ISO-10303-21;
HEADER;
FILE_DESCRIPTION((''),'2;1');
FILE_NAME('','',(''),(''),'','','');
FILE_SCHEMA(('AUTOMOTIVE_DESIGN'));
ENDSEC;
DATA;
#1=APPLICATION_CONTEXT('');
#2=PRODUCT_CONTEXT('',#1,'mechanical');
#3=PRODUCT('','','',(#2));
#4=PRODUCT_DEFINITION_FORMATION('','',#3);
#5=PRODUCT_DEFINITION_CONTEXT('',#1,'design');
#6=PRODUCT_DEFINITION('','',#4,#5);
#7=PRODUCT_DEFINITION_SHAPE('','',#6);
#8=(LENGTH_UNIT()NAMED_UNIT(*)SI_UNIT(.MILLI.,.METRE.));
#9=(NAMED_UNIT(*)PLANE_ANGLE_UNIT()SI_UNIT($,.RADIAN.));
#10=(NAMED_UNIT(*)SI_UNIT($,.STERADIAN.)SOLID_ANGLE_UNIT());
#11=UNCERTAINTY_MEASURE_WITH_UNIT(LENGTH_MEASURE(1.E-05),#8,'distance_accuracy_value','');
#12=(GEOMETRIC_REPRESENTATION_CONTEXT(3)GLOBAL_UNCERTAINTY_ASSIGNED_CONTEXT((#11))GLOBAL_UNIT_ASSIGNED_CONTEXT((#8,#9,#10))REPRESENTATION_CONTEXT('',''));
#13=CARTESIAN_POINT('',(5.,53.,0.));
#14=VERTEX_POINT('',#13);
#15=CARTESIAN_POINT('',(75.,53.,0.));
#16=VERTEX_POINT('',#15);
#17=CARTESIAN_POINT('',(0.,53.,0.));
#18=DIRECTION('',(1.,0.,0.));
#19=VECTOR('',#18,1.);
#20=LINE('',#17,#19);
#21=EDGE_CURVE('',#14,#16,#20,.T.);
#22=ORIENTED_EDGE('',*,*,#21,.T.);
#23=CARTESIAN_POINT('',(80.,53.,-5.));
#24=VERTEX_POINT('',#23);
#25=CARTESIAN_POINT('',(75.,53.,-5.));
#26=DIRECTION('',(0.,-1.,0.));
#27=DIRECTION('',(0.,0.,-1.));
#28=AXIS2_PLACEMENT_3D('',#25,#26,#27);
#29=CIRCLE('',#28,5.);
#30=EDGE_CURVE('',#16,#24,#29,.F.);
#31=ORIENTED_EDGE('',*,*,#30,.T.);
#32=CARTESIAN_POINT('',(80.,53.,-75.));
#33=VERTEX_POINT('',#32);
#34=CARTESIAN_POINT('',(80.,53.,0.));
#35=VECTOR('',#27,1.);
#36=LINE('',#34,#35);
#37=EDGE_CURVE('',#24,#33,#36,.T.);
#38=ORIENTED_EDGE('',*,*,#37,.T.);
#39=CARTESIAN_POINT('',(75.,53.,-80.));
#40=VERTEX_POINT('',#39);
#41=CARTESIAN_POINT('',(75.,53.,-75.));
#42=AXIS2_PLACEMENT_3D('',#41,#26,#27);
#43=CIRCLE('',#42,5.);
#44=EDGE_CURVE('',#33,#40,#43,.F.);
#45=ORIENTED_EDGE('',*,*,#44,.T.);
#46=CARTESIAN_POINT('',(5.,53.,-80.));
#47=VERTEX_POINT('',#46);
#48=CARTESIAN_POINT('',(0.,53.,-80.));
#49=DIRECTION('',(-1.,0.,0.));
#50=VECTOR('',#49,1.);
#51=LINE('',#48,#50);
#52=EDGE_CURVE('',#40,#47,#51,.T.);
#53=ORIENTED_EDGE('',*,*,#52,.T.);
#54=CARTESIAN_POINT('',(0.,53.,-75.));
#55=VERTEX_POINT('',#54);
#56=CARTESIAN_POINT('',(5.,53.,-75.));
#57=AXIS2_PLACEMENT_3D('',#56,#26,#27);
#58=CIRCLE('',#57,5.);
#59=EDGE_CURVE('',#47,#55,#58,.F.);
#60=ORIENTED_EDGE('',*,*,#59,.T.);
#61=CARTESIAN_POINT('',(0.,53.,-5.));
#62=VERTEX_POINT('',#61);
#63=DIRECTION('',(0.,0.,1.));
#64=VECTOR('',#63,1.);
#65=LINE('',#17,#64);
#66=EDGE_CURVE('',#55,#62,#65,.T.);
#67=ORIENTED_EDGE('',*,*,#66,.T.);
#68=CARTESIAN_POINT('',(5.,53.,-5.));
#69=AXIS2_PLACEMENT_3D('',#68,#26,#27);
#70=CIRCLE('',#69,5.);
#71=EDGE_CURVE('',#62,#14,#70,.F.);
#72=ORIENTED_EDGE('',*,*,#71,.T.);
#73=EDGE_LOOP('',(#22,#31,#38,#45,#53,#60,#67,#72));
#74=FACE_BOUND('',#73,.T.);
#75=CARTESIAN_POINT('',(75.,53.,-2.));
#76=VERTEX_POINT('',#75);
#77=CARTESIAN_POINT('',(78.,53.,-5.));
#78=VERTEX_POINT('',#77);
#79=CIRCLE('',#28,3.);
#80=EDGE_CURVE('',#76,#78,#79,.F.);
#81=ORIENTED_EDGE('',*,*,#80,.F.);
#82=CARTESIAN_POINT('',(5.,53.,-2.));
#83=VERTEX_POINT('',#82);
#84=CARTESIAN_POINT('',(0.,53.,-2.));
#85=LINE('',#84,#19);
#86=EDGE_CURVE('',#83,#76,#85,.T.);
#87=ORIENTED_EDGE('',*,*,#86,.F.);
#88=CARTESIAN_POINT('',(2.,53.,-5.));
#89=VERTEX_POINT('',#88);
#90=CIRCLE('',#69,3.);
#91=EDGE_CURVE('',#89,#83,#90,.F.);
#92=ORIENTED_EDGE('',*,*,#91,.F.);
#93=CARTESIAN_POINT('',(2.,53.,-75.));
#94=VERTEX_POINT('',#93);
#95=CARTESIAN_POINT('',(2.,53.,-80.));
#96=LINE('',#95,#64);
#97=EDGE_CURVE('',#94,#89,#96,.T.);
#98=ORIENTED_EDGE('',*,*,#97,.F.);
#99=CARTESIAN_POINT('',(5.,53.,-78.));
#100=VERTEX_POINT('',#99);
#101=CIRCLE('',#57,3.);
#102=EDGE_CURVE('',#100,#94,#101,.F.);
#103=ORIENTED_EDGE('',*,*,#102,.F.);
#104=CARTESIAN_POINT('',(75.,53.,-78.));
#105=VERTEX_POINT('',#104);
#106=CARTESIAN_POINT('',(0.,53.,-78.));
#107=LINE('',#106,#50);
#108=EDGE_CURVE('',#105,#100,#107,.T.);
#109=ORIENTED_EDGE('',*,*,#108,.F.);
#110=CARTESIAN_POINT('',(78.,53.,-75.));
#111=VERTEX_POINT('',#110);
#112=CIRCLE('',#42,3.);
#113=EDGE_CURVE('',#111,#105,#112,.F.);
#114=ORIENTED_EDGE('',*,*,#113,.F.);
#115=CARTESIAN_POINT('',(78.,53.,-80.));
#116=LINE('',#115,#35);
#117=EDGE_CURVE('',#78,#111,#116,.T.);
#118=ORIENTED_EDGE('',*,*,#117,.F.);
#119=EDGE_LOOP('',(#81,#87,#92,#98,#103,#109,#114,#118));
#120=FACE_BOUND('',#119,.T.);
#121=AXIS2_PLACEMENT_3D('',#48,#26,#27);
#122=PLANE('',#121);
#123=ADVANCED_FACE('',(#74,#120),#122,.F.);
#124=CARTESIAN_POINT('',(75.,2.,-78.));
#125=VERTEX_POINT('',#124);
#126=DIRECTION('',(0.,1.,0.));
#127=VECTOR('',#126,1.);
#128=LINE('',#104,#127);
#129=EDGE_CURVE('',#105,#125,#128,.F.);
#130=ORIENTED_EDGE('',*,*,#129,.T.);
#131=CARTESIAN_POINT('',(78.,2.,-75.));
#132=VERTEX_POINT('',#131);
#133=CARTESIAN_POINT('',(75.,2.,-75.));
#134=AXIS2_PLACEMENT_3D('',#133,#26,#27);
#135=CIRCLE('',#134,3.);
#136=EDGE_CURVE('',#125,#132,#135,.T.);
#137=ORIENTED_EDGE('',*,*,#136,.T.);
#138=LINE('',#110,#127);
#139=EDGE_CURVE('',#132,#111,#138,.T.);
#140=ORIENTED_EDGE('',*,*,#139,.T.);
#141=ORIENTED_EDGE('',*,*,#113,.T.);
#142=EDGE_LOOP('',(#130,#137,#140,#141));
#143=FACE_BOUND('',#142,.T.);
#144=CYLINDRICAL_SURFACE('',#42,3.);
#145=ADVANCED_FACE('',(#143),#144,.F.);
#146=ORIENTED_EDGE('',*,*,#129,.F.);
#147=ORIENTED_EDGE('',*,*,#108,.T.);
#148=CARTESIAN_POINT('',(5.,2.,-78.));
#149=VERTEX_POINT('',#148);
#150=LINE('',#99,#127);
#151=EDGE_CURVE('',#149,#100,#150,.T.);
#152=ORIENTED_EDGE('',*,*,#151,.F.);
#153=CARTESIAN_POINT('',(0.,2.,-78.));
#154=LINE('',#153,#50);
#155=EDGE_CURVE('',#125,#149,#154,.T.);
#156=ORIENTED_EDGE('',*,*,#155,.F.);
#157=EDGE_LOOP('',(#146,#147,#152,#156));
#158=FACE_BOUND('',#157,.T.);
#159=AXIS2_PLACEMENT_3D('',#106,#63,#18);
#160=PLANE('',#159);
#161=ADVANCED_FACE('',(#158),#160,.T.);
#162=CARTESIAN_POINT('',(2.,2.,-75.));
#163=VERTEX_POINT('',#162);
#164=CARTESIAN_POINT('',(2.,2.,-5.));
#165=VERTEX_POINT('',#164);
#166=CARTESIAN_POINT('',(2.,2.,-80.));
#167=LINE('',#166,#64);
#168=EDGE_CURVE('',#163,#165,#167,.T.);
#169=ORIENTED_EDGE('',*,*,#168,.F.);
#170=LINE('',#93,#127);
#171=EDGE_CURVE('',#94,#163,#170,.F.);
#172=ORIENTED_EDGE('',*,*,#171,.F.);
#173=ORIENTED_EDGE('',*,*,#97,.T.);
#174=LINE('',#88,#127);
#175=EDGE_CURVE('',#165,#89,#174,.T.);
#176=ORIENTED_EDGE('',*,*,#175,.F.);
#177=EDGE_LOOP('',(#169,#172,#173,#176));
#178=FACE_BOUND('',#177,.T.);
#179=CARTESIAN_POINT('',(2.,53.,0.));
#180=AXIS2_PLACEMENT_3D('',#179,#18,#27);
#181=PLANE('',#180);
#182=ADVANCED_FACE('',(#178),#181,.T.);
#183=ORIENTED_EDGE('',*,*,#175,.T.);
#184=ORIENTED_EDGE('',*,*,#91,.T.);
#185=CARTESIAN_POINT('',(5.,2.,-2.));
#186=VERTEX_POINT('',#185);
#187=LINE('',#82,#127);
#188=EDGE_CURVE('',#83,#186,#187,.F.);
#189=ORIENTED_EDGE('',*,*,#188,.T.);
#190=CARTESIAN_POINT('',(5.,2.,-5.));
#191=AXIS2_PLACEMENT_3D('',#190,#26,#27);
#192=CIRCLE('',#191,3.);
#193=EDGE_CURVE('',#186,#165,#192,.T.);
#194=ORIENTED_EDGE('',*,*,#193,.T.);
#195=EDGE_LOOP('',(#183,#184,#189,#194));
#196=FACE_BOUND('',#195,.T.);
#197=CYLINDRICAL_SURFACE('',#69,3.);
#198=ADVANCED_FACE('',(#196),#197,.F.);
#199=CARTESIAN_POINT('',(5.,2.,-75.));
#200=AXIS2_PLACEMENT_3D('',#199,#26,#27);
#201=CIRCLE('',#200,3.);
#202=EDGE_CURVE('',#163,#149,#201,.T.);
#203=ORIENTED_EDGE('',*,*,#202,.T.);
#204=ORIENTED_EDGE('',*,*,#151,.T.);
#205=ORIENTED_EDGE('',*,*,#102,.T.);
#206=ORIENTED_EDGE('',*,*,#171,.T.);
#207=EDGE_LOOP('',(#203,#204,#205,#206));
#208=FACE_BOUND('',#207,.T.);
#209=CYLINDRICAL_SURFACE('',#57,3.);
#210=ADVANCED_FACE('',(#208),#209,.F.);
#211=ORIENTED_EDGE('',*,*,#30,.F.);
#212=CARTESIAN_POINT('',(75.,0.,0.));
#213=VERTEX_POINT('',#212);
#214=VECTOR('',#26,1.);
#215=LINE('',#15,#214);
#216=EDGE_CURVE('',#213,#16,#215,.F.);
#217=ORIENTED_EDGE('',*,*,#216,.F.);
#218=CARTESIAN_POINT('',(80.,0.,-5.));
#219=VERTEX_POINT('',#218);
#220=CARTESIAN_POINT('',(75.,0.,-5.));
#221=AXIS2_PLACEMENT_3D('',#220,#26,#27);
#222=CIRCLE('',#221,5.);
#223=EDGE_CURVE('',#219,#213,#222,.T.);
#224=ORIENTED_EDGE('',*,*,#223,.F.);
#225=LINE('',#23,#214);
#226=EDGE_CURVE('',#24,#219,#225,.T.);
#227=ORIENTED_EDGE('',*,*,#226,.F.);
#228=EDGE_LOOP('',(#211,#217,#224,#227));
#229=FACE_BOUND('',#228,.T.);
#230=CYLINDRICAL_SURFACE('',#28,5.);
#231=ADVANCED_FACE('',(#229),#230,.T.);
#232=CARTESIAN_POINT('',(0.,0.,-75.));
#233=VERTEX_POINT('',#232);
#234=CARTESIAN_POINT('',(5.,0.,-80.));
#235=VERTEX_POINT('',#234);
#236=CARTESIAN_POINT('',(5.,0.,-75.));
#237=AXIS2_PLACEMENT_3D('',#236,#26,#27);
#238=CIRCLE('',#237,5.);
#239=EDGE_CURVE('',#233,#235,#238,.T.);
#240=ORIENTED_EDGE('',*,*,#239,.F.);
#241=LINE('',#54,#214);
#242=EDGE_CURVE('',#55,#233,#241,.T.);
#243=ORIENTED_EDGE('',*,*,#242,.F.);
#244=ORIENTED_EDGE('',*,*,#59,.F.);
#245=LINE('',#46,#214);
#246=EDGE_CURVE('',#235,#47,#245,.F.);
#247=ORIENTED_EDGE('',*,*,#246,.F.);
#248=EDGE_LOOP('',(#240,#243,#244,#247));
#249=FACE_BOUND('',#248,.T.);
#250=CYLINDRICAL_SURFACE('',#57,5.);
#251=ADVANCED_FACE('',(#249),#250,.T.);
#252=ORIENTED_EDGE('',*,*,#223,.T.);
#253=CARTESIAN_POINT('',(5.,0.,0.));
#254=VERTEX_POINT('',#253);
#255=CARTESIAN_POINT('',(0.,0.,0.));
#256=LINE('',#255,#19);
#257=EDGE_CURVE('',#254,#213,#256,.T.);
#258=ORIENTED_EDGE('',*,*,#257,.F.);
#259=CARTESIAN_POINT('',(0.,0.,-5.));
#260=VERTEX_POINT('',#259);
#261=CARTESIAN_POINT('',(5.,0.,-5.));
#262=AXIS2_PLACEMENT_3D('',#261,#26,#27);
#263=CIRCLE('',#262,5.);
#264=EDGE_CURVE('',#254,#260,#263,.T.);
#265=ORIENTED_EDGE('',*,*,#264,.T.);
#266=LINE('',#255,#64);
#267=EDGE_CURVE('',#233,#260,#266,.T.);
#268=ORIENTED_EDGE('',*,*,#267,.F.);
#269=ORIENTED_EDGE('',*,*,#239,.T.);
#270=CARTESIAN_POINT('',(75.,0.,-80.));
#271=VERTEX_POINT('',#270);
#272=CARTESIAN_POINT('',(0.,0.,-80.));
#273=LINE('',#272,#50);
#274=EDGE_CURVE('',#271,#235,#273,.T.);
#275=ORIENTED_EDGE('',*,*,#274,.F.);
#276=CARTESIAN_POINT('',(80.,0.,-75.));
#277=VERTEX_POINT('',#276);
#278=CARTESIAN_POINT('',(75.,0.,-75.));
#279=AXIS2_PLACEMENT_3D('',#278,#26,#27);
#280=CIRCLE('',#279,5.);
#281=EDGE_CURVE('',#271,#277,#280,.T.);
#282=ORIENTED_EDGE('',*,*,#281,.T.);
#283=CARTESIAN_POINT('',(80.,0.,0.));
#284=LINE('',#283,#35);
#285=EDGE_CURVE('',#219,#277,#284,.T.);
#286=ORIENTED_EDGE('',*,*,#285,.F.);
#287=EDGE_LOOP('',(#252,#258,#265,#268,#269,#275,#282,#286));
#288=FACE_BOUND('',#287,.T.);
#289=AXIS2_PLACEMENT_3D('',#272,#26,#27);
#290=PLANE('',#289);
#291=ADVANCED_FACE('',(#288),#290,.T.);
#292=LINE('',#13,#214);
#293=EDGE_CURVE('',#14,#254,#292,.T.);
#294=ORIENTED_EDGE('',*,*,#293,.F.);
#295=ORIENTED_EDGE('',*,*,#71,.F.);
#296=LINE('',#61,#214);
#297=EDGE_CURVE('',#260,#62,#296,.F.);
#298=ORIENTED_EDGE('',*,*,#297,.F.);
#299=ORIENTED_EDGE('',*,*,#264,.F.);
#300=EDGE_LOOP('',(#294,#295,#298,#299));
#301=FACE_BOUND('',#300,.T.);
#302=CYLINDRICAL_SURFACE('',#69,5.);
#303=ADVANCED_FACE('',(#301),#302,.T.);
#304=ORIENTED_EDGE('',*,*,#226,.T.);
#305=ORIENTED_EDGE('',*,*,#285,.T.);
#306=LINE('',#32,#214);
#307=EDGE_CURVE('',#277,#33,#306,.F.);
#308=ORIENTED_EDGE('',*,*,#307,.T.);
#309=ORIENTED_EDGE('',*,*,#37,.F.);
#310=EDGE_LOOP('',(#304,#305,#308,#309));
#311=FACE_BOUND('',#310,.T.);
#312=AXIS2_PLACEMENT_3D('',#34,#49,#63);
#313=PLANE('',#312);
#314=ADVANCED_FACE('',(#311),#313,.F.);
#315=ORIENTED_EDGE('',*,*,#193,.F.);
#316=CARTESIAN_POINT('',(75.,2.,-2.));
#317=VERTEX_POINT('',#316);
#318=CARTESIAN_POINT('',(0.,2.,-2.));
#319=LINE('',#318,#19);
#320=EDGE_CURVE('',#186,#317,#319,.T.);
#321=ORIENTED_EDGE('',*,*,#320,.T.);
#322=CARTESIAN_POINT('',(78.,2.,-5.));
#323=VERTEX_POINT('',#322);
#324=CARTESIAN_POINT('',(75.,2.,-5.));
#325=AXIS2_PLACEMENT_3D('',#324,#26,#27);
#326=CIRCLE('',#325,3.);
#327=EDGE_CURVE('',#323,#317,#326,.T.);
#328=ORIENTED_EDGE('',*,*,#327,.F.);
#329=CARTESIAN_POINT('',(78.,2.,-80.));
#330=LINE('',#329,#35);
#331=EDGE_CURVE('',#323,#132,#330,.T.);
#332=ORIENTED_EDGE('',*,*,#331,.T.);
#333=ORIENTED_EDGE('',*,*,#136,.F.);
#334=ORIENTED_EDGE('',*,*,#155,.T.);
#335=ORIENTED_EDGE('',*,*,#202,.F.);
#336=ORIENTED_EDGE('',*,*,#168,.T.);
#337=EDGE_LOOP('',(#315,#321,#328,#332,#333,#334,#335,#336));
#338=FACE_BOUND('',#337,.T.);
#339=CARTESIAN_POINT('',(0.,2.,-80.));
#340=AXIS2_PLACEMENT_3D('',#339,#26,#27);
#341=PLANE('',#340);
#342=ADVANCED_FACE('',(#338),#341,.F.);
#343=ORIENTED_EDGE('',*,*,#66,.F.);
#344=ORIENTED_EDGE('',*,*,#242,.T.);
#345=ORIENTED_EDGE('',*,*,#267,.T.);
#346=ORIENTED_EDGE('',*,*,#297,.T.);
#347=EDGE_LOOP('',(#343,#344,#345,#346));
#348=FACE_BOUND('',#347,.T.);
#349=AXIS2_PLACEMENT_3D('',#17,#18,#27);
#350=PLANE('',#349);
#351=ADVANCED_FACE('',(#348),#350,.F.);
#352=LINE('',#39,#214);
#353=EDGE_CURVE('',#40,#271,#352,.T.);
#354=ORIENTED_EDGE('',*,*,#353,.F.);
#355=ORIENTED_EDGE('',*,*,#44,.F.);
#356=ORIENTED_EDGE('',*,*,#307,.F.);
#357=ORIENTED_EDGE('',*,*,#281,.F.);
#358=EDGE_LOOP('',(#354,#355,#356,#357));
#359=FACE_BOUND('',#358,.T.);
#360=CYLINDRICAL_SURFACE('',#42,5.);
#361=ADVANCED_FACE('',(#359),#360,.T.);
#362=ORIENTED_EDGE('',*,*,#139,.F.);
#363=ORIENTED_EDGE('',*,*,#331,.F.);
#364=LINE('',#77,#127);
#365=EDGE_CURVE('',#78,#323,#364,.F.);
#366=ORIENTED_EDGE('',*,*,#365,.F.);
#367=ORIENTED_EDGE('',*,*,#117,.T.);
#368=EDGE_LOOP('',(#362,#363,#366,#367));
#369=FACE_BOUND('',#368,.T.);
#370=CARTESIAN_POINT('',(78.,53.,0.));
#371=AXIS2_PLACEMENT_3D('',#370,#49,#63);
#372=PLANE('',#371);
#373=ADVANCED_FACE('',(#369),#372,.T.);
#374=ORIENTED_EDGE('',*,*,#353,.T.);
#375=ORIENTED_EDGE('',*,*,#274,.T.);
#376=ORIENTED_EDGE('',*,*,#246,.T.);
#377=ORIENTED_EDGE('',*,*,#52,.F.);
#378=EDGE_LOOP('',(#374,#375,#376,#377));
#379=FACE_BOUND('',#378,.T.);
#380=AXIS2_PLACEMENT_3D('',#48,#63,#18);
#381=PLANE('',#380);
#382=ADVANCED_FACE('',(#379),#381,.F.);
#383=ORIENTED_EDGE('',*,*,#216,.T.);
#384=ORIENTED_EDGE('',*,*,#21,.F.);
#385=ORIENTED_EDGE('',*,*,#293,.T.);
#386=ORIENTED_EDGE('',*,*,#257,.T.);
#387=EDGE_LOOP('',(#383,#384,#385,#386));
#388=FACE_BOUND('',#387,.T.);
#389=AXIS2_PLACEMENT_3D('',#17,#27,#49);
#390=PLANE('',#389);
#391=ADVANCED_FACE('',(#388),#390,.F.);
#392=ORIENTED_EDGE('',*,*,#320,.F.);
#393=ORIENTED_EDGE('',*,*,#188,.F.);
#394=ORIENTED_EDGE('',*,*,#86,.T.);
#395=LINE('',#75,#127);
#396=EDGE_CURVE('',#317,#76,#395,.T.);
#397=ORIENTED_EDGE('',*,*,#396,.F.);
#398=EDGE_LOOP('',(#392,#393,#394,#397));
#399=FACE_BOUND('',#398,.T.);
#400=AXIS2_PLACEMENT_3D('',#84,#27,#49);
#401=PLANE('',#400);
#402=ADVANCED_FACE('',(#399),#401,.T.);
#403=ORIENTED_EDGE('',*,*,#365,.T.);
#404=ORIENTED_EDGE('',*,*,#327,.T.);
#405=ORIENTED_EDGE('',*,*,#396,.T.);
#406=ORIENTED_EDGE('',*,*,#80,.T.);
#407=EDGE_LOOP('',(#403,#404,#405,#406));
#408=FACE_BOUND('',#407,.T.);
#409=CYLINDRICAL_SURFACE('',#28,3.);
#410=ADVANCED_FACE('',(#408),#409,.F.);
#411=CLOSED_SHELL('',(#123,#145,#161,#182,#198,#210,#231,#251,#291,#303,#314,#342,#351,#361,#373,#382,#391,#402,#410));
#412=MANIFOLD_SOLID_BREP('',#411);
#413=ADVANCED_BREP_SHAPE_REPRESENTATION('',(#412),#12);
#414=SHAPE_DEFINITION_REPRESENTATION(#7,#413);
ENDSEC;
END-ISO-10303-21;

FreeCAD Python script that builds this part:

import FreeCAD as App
import Part
import Sketcher
from FreeCAD import Vector


def edges_at(feature, points):
    """Names of the edges that pass closest to the given points."""
    edges = feature.Shape.Edges
    near = lambda p: min(range(len(edges)), key=lambda i: edges[i].distToShape(Part.Vertex(*p))[0])
    return sorted({f"Edge{near(p) + 1}" for p in points})


def faces_at(feature, points):
    """Names of the faces that lie closest to the given points."""
    faces = feature.Shape.Faces
    near = lambda p: min(range(len(faces)), key=lambda i: faces[i].distToShape(Part.Vertex(*p))[0])
    return sorted({f"Face{near(p) + 1}" for p in points})


def add_polygon(sketch, points):
    """Adds a closed chain of lines whose ends are joined by coincident constraints."""
    first, n = sketch.GeometryCount, len(points)
    for a, b in zip(points, points[1:] + points[:1]):
        sketch.addGeometry(Part.LineSegment(App.Vector(*a, 0), App.Vector(*b, 0)), False)
    for i in range(n):
        sketch.addConstraint(Sketcher.Constraint("Coincident", first + i, 2, first + (i + 1) % n, 1))

doc = App.newDocument("Part")
body = doc.addObject("PartDesign::Body", "Body")

# Sketch on XZ plane
sketch1 = body.newObject("Sketcher::SketchObject", "Sketch")
sketch1.AttachmentSupport = (doc.getObject("XZ_Plane"), [""])
sketch1.MapMode = "FlatFace"
add_polygon(sketch1, [(0, -80), (0, 0), (80, 0), (80, -80)])  # lines 0-3
sketch1.addConstraint(Sketcher.Constraint("Vertical", 0))
sketch1.addConstraint(Sketcher.Constraint("Horizontal", 1))
sketch1.addConstraint(Sketcher.Constraint("Vertical", 2))
sketch1.addConstraint(Sketcher.Constraint("Horizontal", 3))
sketch1.addConstraint(Sketcher.Constraint("Coincident", 0, 2, -1, 1))
sketch1.addConstraint(Sketcher.Constraint("Equal", 3, 0))
sketch1.addConstraint(Sketcher.Constraint("DistanceX", 1, 1, 1, 2, 80.0))
pad1 = body.newObject("PartDesign::Pad", "Pad")
pad1.Profile = sketch1
pad1.Length = 53
pad1.Reversed = True
doc.recompute()

fillet = body.newObject("PartDesign::Fillet", "Fillet")
fillet.Base = (pad1, edges_at(pad1, [
    (0, 26.5, -80),
    (80, 26.5, -80),
    (80, 26.5, 0),
    (0, 26.5, 0),
]))
fillet.Radius = 5
doc.recompute()

thickness = body.newObject("PartDesign::Thickness", "Thickness")
thickness.Base = (fillet, faces_at(fillet, [(40, 53, -40)]))
thickness.Value = 2
thickness.Reversed = True
thickness.Join = "Intersection"

doc.recompute()
